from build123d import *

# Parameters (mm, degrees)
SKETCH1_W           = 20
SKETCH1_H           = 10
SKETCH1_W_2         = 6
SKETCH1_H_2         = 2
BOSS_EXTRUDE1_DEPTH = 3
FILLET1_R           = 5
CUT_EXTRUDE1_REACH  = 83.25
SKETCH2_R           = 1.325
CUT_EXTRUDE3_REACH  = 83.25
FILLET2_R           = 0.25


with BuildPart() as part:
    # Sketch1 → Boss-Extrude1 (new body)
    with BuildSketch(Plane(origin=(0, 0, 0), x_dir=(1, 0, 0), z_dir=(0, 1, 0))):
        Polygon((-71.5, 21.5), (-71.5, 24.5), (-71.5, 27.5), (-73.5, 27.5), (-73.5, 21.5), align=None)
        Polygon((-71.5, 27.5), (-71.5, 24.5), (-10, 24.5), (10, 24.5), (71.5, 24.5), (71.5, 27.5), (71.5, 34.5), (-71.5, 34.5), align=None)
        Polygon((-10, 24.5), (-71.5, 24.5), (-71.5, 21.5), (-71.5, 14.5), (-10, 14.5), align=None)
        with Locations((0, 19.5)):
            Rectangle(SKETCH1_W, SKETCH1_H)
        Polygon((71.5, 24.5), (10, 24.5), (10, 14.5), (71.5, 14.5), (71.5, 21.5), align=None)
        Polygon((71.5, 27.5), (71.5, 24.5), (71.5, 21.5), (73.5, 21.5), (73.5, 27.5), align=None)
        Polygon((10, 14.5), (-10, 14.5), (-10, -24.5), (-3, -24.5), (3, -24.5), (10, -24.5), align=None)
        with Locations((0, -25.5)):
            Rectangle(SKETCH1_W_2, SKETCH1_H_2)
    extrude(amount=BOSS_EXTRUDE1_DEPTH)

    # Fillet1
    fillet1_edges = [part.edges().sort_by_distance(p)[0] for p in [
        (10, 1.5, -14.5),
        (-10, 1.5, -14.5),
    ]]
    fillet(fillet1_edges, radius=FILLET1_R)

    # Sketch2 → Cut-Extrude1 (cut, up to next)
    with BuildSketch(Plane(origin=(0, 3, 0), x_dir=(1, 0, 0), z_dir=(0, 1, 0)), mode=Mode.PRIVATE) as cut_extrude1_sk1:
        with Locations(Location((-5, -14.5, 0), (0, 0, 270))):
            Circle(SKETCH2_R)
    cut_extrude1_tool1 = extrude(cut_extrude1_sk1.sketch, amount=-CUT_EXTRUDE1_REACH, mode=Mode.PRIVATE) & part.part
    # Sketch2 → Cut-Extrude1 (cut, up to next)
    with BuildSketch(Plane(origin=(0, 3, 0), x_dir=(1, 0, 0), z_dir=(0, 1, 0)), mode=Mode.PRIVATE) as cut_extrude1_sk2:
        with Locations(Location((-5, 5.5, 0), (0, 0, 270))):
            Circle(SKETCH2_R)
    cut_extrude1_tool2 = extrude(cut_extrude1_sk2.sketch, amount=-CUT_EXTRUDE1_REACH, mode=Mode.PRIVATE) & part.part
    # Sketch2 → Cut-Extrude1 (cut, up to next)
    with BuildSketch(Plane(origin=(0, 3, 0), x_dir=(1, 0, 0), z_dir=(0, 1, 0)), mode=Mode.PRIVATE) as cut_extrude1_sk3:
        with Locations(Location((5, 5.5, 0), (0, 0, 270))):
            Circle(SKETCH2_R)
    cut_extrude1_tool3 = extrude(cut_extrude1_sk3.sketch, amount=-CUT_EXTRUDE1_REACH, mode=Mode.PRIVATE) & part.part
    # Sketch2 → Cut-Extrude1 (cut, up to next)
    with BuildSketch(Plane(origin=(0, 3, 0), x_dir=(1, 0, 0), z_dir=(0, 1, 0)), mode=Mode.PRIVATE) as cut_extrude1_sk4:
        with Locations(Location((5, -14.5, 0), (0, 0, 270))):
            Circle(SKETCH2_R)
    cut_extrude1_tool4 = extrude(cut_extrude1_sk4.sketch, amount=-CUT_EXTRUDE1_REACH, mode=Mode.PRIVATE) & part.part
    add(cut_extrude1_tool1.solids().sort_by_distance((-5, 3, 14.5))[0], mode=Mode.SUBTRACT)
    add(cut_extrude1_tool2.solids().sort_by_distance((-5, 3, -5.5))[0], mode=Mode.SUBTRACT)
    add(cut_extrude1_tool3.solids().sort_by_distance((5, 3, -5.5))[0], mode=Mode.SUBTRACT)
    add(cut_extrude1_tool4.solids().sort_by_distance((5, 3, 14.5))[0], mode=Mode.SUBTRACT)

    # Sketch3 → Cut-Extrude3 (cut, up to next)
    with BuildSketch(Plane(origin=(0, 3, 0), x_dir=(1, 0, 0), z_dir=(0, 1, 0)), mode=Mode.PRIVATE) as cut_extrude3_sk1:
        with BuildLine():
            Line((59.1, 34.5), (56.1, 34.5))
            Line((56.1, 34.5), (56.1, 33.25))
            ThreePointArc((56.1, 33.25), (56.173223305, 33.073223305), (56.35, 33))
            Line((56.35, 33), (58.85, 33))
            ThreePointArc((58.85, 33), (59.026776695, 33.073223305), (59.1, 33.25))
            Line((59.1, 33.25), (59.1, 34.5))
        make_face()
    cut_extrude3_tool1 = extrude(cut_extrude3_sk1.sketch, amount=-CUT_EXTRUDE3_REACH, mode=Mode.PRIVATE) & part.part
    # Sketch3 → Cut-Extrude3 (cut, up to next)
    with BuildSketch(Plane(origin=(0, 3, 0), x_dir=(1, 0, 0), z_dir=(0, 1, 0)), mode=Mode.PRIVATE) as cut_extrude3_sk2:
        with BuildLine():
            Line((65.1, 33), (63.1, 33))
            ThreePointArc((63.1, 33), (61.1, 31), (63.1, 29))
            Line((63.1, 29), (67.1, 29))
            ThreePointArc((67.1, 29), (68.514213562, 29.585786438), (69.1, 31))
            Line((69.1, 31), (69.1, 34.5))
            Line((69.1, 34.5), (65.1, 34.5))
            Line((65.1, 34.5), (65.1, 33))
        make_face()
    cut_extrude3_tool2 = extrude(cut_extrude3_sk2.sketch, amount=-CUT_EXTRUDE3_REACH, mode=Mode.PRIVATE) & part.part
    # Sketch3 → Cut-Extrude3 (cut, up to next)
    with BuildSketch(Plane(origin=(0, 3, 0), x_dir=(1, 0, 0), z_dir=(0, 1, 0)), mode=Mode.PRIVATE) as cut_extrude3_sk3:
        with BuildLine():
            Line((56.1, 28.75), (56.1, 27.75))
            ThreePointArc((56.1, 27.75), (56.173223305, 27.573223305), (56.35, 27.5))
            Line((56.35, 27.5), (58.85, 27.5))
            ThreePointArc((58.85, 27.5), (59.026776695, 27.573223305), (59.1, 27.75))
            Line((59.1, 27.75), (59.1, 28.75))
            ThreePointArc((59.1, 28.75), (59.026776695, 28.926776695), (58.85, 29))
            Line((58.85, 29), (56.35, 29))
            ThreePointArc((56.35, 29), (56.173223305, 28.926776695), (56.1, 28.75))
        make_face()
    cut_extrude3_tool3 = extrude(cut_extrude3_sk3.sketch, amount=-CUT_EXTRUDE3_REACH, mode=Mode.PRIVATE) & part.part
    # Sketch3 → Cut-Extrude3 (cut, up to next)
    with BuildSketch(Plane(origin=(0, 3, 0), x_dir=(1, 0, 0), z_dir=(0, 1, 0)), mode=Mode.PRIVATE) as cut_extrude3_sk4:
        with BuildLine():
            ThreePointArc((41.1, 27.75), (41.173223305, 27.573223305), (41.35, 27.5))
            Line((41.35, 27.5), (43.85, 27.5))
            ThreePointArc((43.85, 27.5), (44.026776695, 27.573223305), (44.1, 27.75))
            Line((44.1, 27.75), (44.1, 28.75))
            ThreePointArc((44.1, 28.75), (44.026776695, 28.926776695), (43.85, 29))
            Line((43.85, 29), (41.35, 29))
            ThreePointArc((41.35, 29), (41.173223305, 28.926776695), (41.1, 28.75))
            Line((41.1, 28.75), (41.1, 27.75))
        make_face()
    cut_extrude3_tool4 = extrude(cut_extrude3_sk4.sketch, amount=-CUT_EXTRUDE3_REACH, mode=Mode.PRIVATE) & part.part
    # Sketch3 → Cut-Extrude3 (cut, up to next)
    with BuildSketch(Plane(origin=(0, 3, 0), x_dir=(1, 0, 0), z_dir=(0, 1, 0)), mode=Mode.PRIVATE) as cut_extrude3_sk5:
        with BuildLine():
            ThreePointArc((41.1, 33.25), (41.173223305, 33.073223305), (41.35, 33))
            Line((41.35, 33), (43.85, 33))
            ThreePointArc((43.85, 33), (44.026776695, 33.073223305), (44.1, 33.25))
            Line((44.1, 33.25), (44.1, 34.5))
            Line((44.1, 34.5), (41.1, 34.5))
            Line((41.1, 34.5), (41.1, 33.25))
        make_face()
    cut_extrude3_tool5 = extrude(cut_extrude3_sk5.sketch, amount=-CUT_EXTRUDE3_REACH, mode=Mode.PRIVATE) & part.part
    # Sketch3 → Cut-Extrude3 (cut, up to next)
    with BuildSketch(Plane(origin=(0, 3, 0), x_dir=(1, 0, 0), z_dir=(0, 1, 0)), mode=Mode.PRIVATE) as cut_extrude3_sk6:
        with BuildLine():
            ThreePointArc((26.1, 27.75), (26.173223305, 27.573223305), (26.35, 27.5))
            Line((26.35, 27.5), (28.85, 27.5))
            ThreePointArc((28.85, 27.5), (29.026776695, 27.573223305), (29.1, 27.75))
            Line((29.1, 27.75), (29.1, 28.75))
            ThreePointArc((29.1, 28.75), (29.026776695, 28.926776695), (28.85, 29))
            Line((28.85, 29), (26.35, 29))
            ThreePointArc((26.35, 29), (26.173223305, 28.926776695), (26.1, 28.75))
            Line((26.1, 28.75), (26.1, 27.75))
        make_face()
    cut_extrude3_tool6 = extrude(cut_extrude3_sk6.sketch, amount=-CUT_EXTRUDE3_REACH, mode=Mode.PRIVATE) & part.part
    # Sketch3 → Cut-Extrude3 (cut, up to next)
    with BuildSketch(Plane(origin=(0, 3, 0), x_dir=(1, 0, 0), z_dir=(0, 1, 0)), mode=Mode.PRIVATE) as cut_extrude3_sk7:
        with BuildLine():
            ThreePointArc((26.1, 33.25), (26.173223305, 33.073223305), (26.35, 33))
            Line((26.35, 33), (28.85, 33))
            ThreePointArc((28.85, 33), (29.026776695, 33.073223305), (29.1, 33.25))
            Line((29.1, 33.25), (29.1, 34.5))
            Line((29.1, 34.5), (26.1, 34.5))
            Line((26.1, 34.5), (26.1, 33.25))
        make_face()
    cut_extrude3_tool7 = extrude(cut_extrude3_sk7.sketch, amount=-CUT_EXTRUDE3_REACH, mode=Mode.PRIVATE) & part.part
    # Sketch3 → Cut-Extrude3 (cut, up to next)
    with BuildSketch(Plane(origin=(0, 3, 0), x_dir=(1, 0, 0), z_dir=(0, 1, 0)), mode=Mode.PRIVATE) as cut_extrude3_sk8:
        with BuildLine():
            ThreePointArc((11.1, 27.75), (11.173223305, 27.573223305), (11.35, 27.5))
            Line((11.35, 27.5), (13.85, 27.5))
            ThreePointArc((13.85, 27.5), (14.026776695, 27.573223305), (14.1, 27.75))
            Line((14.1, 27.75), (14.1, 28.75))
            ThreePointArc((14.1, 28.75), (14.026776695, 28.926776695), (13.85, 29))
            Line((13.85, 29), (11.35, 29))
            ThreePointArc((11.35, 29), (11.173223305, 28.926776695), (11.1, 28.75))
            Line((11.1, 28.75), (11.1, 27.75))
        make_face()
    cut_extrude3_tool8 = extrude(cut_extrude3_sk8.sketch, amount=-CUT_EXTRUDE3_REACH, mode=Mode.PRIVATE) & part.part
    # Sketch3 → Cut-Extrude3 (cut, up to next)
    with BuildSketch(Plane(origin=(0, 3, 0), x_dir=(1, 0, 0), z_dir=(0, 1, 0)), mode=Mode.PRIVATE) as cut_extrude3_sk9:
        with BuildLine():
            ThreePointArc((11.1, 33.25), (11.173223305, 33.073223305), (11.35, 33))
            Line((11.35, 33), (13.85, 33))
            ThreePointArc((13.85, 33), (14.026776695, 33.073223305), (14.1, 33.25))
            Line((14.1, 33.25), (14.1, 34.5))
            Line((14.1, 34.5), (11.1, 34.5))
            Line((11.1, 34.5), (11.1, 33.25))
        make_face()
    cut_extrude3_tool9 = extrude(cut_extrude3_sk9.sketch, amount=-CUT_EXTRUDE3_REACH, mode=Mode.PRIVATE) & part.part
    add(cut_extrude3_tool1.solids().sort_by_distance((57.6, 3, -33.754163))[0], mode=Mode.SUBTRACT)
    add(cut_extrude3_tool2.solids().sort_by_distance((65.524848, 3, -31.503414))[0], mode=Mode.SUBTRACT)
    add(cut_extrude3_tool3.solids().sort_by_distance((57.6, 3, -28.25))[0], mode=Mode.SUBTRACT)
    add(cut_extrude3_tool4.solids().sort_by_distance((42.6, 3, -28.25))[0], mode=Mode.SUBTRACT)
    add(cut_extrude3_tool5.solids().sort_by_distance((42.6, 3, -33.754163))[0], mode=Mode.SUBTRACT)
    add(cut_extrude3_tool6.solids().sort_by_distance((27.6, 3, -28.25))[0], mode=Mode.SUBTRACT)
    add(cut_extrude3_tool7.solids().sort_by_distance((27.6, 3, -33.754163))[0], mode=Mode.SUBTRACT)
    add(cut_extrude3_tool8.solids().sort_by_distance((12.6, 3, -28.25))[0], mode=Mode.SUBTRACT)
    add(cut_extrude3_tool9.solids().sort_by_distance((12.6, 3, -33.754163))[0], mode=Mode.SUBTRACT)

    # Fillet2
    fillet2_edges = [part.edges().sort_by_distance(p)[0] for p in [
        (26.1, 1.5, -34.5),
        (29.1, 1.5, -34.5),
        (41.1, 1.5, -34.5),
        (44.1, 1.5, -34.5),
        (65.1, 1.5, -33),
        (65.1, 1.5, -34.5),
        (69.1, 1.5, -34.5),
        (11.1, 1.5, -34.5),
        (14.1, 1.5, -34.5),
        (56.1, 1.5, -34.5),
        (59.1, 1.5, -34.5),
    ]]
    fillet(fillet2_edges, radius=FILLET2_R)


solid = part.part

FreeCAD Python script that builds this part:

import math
import FreeCAD as App
import Part
import Sketcher
from FreeCAD import Vector


def edges_at(feature, points):
    """Names of the edges that pass closest to the given points."""
    edges = feature.Shape.Edges
    near = lambda p: min(range(len(edges)), key=lambda i: edges[i].distToShape(Part.Vertex(*p))[0])
    return sorted({f"Edge{near(p) + 1}" for p in points})

doc = App.newDocument("Part")
body = doc.addObject("PartDesign::Body", "Body")

# Sketch on XZ plane
sketch1 = body.newObject("Sketcher::SketchObject", "Sketch")
sketch1.AttachmentSupport = (doc.getObject("XZ_Plane"), [""])
sketch1.MapMode = "FlatFace"
sketch1.addGeometry([
    Part.LineSegment(Vector(71.5, -34.5, 0), Vector(-71.5, -34.5, 0)),  # 0
    Part.LineSegment(Vector(-71.5, -34.5, 0), Vector(-71.5, -27.5, 0)),  # 1
    Part.LineSegment(Vector(-71.5, -27.5, 0), Vector(-73.5, -27.5, 0)),  # 2
    Part.LineSegment(Vector(-73.5, -27.5, 0), Vector(-73.5, -21.5, 0)),  # 3
    Part.LineSegment(Vector(-73.5, -21.5, 0), Vector(-71.5, -21.5, 0)),  # 4
    Part.LineSegment(Vector(-71.5, -21.5, 0), Vector(-71.5, -14.5, 0)),  # 5
    Part.LineSegment(Vector(-71.5, -14.5, 0), Vector(-10, -14.5, 0)),  # 6
    Part.LineSegment(Vector(-10, -14.5, 0), Vector(-10, 24.5, 0)),  # 7
    Part.LineSegment(Vector(-10, 24.5, 0), Vector(-3, 24.5, 0)),  # 8
    Part.LineSegment(Vector(-3, 24.5, 0), Vector(-3, 26.5, 0)),  # 9
    Part.LineSegment(Vector(-3, 26.5, 0), Vector(3, 26.5, 0)),  # 10
    Part.LineSegment(Vector(3, 26.5, 0), Vector(3, 24.5, 0)),  # 11
    Part.LineSegment(Vector(3, 24.5, 0), Vector(10, 24.5, 0)),  # 12
    Part.LineSegment(Vector(10, 24.5, 0), Vector(10, -14.5, 0)),  # 13
    Part.LineSegment(Vector(10, -14.5, 0), Vector(71.5, -14.5, 0)),  # 14
    Part.LineSegment(Vector(71.5, -14.5, 0), Vector(71.5, -21.5, 0)),  # 15
    Part.LineSegment(Vector(71.5, -21.5, 0), Vector(73.5, -21.5, 0)),  # 16
    Part.LineSegment(Vector(73.5, -21.5, 0), Vector(73.5, -27.5, 0)),  # 17
    Part.LineSegment(Vector(73.5, -27.5, 0), Vector(71.5, -27.5, 0)),  # 18
    Part.LineSegment(Vector(71.5, -27.5, 0), Vector(71.5, -34.5, 0)),  # 19
], False)
sketch1.addConstraint([
    Sketcher.Constraint("Coincident", 0, 2, 1, 1),
    Sketcher.Constraint("Coincident", 1, 2, 2, 1),
    Sketcher.Constraint("Coincident", 2, 2, 3, 1),
    Sketcher.Constraint("Coincident", 3, 2, 4, 1),
    Sketcher.Constraint("Coincident", 4, 2, 5, 1),
    Sketcher.Constraint("Coincident", 5, 2, 6, 1),
    Sketcher.Constraint("Coincident", 6, 2, 7, 1),
    Sketcher.Constraint("Coincident", 7, 2, 8, 1),
    Sketcher.Constraint("Coincident", 8, 2, 9, 1),
    Sketcher.Constraint("Coincident", 9, 2, 10, 1),
    Sketcher.Constraint("Coincident", 10, 2, 11, 1),
    Sketcher.Constraint("Coincident", 11, 2, 12, 1),
    Sketcher.Constraint("Coincident", 12, 2, 13, 1),
    Sketcher.Constraint("Coincident", 13, 2, 14, 1),
    Sketcher.Constraint("Coincident", 14, 2, 15, 1),
    Sketcher.Constraint("Coincident", 15, 2, 16, 1),
    Sketcher.Constraint("Coincident", 16, 2, 17, 1),
    Sketcher.Constraint("Coincident", 17, 2, 18, 1),
    Sketcher.Constraint("Coincident", 18, 2, 19, 1),
    Sketcher.Constraint("Coincident", 19, 2, 0, 1),
    Sketcher.Constraint("Horizontal", 0),
    Sketcher.Constraint("Vertical", 1),
    Sketcher.Constraint("Horizontal", 2),
    Sketcher.Constraint("Vertical", 3),
    Sketcher.Constraint("Horizontal", 4),
    Sketcher.Constraint("Vertical", 5),
    Sketcher.Constraint("Horizontal", 6),
    Sketcher.Constraint("Vertical", 7),
    Sketcher.Constraint("Horizontal", 8),
    Sketcher.Constraint("Vertical", 9),
    Sketcher.Constraint("Horizontal", 10),
    Sketcher.Constraint("Vertical", 11),
    Sketcher.Constraint("Horizontal", 12),
    Sketcher.Constraint("Vertical", 13),
    Sketcher.Constraint("Horizontal", 14),
    Sketcher.Constraint("Vertical", 15),
    Sketcher.Constraint("Horizontal", 16),
    Sketcher.Constraint("Vertical", 17),
    Sketcher.Constraint("Horizontal", 18),
    Sketcher.Constraint("Vertical", 19),
    Sketcher.Constraint("Symmetric", 8, 2, 11, 2, -2),
    Sketcher.Constraint("Symmetric", 6, 2, 13, 2, -2),
    Sketcher.Constraint("Symmetric", 4, 2, 15, 2, -2),
    Sketcher.Constraint("Symmetric", 2, 2, 17, 2, -2),
    Sketcher.Constraint("Vertical", 1, 2, 4, 2),
    Sketcher.Constraint("Vertical", 15, 2, 18, 2),
    Sketcher.Constraint("Equal", 12, 1),
    Sketcher.Constraint("Equal", 10, 3),
    Sketcher.Constraint("Equal", 1, 5),
    Sketcher.Constraint("Equal", 18, 9),
    Sketcher.Constraint("DistanceX", 0, 2, 0, 1, 143.0),
    Sketcher.Constraint("DistanceX", 2, 2, 2, 1, 2.0),
    Sketcher.Constraint("DistanceX", 8, 1, 8, 2, 7.0),
    Sketcher.Constraint("DistanceX", 10, 1, 10, 2, 6.0),
    Sketcher.Constraint("DistanceY", 7, 1, 7, 2, 39.0),
    Sketcher.Constraint("DistanceY", 0, 2, -1, 1, 34.5),
])
pad1 = body.newObject("PartDesign::Pad", "Pad")
pad1.Profile = sketch1
pad1.Length = 3
pad1.Reversed = True
doc.recompute()

fillet = body.newObject("PartDesign::Fillet", "Fillet")
fillet.Base = (pad1, edges_at(pad1, [(10, 1.5, -14.5), (-10, 1.5, -14.5)]))
fillet.Radius = 5

# Sketch on XZ plane
sketch2 = body.newObject("Sketcher::SketchObject", "Sketch001")
sketch2.AttachmentSupport = (doc.getObject("XZ_Plane"), [""])
sketch2.MapMode = "FlatFace"
sketch2.AttachmentOffset = App.Placement(Vector(0, 0, -3), App.Rotation())
sketch2.addGeometry(Part.Circle(Vector(-5, 14.5, 0), Vector(0, 0, 1), 1.3), False)
sketch2.addConstraint([
    Sketcher.Constraint("Diameter", 0, 2.65),
    Sketcher.Constraint("DistanceX", 0, 3, -1, 1, 5.0),
    Sketcher.Constraint("DistanceY", -1, 1, 0, 3, 14.5),
])
pocket1 = body.newObject("PartDesign::Pocket", "Pocket")
pocket1.Profile = sketch2
pocket1.Type = "UpToFirst"
pocket1.Reversed = True

# Sketch on XZ plane
sketch3 = body.newObject("Sketcher::SketchObject", "Sketch002")
sketch3.AttachmentSupport = (doc.getObject("XZ_Plane"), [""])
sketch3.MapMode = "FlatFace"
sketch3.AttachmentOffset = App.Placement(Vector(0, 0, -3), App.Rotation())
sketch3.addGeometry(Part.Circle(Vector(-5, -5.5, 0), Vector(0, 0, 1), 1.3), False)
sketch3.addConstraint([
    Sketcher.Constraint("Diameter", 0, 2.65),
    Sketcher.Constraint("DistanceX", 0, 3, -1, 1, 5.0),
    Sketcher.Constraint("DistanceY", 0, 3, -1, 1, 5.5),
])
pocket2 = body.newObject("PartDesign::Pocket", "Pocket001")
pocket2.Profile = sketch3
pocket2.Type = "UpToFirst"
pocket2.Reversed = True

# Sketch on XZ plane
sketch4 = body.newObject("Sketcher::SketchObject", "Sketch003")
sketch4.AttachmentSupport = (doc.getObject("XZ_Plane"), [""])
sketch4.MapMode = "FlatFace"
sketch4.AttachmentOffset = App.Placement(Vector(0, 0, -3), App.Rotation())
sketch4.addGeometry(Part.Circle(Vector(5, -5.5, 0), Vector(0, 0, 1), 1.3), False)
sketch4.addConstraint([
    Sketcher.Constraint("Diameter", 0, 2.65),
    Sketcher.Constraint("DistanceX", -1, 1, 0, 3, 5.0),
    Sketcher.Constraint("DistanceY", 0, 3, -1, 1, 5.5),
])
pocket3 = body.newObject("PartDesign::Pocket", "Pocket002")
pocket3.Profile = sketch4
pocket3.Type = "UpToFirst"
pocket3.Reversed = True

# Sketch on XZ plane
sketch5 = body.newObject("Sketcher::SketchObject", "Sketch004")
sketch5.AttachmentSupport = (doc.getObject("XZ_Plane"), [""])
sketch5.MapMode = "FlatFace"
sketch5.AttachmentOffset = App.Placement(Vector(0, 0, -3), App.Rotation())
sketch5.addGeometry(Part.Circle(Vector(5, 14.5, 0), Vector(0, 0, 1), 1.3), False)
sketch5.addConstraint([
    Sketcher.Constraint("Diameter", 0, 2.65),
    Sketcher.Constraint("DistanceX", -1, 1, 0, 3, 5.0),
    Sketcher.Constraint("DistanceY", -1, 1, 0, 3, 14.5),
])
pocket4 = body.newObject("PartDesign::Pocket", "Pocket003")
pocket4.Profile = sketch5
pocket4.Type = "UpToFirst"
pocket4.Reversed = True

# Sketch on XZ plane
sketch6 = body.newObject("Sketcher::SketchObject", "Sketch005")
sketch6.AttachmentSupport = (doc.getObject("XZ_Plane"), [""])
sketch6.MapMode = "FlatFace"
sketch6.AttachmentOffset = App.Placement(Vector(0, 0, -3), App.Rotation())
sketch6.addGeometry([
    Part.LineSegment(Vector(59.1, -34.5, 0), Vector(56.1, -34.5, 0)),  # 0
    Part.LineSegment(Vector(56.1, -34.5, 0), Vector(56.1, -33.25, 0)),  # 1
    Part.ArcOfCircle(Part.Circle(Vector(56.35, -33.25, 0), Vector(0, 0, 1), 0.25), math.radians(90), math.radians(180)),  # 2
    Part.LineSegment(Vector(56.35, -33, 0), Vector(58.85, -33, 0)),  # 3
    Part.ArcOfCircle(Part.Circle(Vector(58.85, -33.25, 0), Vector(0, 0, 1), 0.25), math.radians(0), math.radians(90)),  # 4
    Part.LineSegment(Vector(59.1, -33.25, 0), Vector(59.1, -34.5, 0)),  # 5
], False)
sketch6.addConstraint([
    Sketcher.Constraint("Coincident", 0, 2, 1, 1),
    Sketcher.Constraint("Tangent", 1, 2, 2, 2),
    Sketcher.Constraint("Tangent", 2, 1, 3, 1),
    Sketcher.Constraint("Tangent", 3, 2, 4, 2),
    Sketcher.Constraint("Tangent", 4, 1, 5, 1),
    Sketcher.Constraint("Coincident", 5, 2, 0, 1),
    Sketcher.Constraint("Horizontal", 0),
    Sketcher.Constraint("Vertical", 1),
    Sketcher.Constraint("Horizontal", 3),
    Sketcher.Constraint("Vertical", 5),
    Sketcher.Constraint("Equal", 2, 4),
    Sketcher.Constraint("DistanceX", 0, 2, 0, 1, 3.0),
    Sketcher.Constraint("Radius", 2, 0.25),
    Sketcher.Constraint("DistanceY", 2, 1, -1, 1, 33.0),
    Sketcher.Constraint("DistanceY", 1, 1, 1, 2, 1.25),
    Sketcher.Constraint("DistanceX", -1, 1, 0, 2, 56.1),
])
pocket5 = body.newObject("PartDesign::Pocket", "Pocket004")
pocket5.Profile = sketch6
pocket5.Type = "UpToFirst"
pocket5.Reversed = True

# Sketch on XZ plane
sketch7 = body.newObject("Sketcher::SketchObject", "Sketch006")
sketch7.AttachmentSupport = (doc.getObject("XZ_Plane"), [""])
sketch7.MapMode = "FlatFace"
sketch7.AttachmentOffset = App.Placement(Vector(0, 0, -3), App.Rotation())
sketch7.addGeometry([
    Part.LineSegment(Vector(65.1, -33, 0), Vector(63.1, -33, 0)),  # 0
    Part.ArcOfCircle(Part.Circle(Vector(63.1, -31, 0), Vector(0, 0, 1), 2), math.radians(90), math.radians(270)),  # 1
    Part.LineSegment(Vector(63.1, -29, 0), Vector(67.1, -29, 0)),  # 2
    Part.ArcOfCircle(Part.Circle(Vector(67.1, -31, 0), Vector(0, 0, 1), 2), math.radians(0), math.radians(90)),  # 3
    Part.LineSegment(Vector(69.1, -31, 0), Vector(69.1, -34.5, 0)),  # 4
    Part.LineSegment(Vector(69.1, -34.5, 0), Vector(65.1, -34.5, 0)),  # 5
    Part.LineSegment(Vector(65.1, -34.5, 0), Vector(65.1, -33, 0)),  # 6
], False)
sketch7.addConstraint([
    Sketcher.Constraint("Tangent", 0, 2, 1, 2),
    Sketcher.Constraint("Tangent", 1, 1, 2, 1),
    Sketcher.Constraint("Tangent", 2, 2, 3, 2),
    Sketcher.Constraint("Tangent", 3, 1, 4, 1),
    Sketcher.Constraint("Coincident", 4, 2, 5, 1),
    Sketcher.Constraint("Coincident", 5, 2, 6, 1),
    Sketcher.Constraint("Coincident", 6, 2, 0, 1),
    Sketcher.Constraint("Horizontal", 0),
    Sketcher.Constraint("Horizontal", 2),
    Sketcher.Constraint("Vertical", 4),
    Sketcher.Constraint("Horizontal", 5),
    Sketcher.Constraint("Vertical", 6),
    Sketcher.Constraint("Equal", 1, 3),
    Sketcher.Constraint("Equal", 2, 5),
    Sketcher.Constraint("Radius", 1, 2.0),
    Sketcher.Constraint("DistanceX", 2, 1, 2, 2, 4.0),
    Sketcher.Constraint("DistanceY", 4, 2, 4, 1, 3.5),
    Sketcher.Constraint("DistanceY", 1, 3, -1, 1, 31.0),
    Sketcher.Constraint("DistanceX", -1, 1, 1, 3, 63.1),
])
pocket6 = body.newObject("PartDesign::Pocket", "Pocket005")
pocket6.Profile = sketch7
pocket6.Type = "UpToFirst"
pocket6.Reversed = True

# Sketch on XZ plane
sketch8 = body.newObject("Sketcher::SketchObject", "Sketch007")
sketch8.AttachmentSupport = (doc.getObject("XZ_Plane"), [""])
sketch8.MapMode = "FlatFace"
sketch8.AttachmentOffset = App.Placement(Vector(0, 0, -3), App.Rotation())
sketch8.addGeometry([
    Part.LineSegment(Vector(56.1, -28.75, 0), Vector(56.1, -27.75, 0)),  # 0
    Part.ArcOfCircle(Part.Circle(Vector(56.35, -27.75, 0), Vector(0, 0, 1), 0.25), math.radians(90), math.radians(180)),  # 1
    Part.LineSegment(Vector(56.35, -27.5, 0), Vector(58.85, -27.5, 0)),  # 2
    Part.ArcOfCircle(Part.Circle(Vector(58.85, -27.75, 0), Vector(0, 0, 1), 0.25), math.radians(0), math.radians(90)),  # 3
    Part.LineSegment(Vector(59.1, -27.75, 0), Vector(59.1, -28.75, 0)),  # 4
    Part.ArcOfCircle(Part.Circle(Vector(58.85, -28.75, 0), Vector(0, 0, 1), 0.25), math.radians(-90), math.radians(0)),  # 5
    Part.LineSegment(Vector(58.85, -29, 0), Vector(56.35, -29, 0)),  # 6
    Part.ArcOfCircle(Part.Circle(Vector(56.35, -28.75, 0), Vector(0, 0, 1), 0.25), math.radians(-180), math.radians(-90)),  # 7
], False)
sketch8.addConstraint([
    Sketcher.Constraint("Tangent", 0, 2, 1, 2),
    Sketcher.Constraint("Tangent", 1, 1, 2, 1),
    Sketcher.Constraint("Tangent", 2, 2, 3, 2),
    Sketcher.Constraint("Tangent", 3, 1, 4, 1),
    Sketcher.Constraint("Tangent", 4, 2, 5, 2),
    Sketcher.Constraint("Tangent", 5, 1, 6, 1),
    Sketcher.Constraint("Tangent", 6, 2, 7, 2),
    Sketcher.Constraint("Tangent", 7, 1, 0, 1),
    Sketcher.Constraint("Vertical", 0),
    Sketcher.Constraint("Horizontal", 2),
    Sketcher.Constraint("Vertical", 4),
    Sketcher.Constraint("Horizontal", 6),
    Sketcher.Constraint("Equal", 1, 3),
    Sketcher.Constraint("Equal", 3, 5),
    Sketcher.Constraint("Equal", 5, 7),
    Sketcher.Constraint("DistanceY", 0, 1, 0, 2, 1.0),
    Sketcher.Constraint("Radius", 1, 0.25),
    Sketcher.Constraint("DistanceX", 2, 1, 2, 2, 2.5),
    Sketcher.Constraint("DistanceY", 5, 1, -1, 1, 29.0),
    Sketcher.Constraint("DistanceX", -1, 1, 0, 2, 56.1),
])
pocket7 = body.newObject("PartDesign::Pocket", "Pocket006")
pocket7.Profile = sketch8
pocket7.Type = "UpToFirst"
pocket7.Reversed = True

# Sketch on XZ plane
sketch9 = body.newObject("Sketcher::SketchObject", "Sketch008")
sketch9.AttachmentSupport = (doc.getObject("XZ_Plane"), [""])
sketch9.MapMode = "FlatFace"
sketch9.AttachmentOffset = App.Placement(Vector(0, 0, -3), App.Rotation())
sketch9.addGeometry([
    Part.ArcOfCircle(Part.Circle(Vector(41.35, -27.75, 0), Vector(0, 0, 1), 0.25), math.radians(90), math.radians(180)),  # 0
    Part.LineSegment(Vector(41.35, -27.5, 0), Vector(43.85, -27.5, 0)),  # 1
    Part.ArcOfCircle(Part.Circle(Vector(43.85, -27.75, 0), Vector(0, 0, 1), 0.25), math.radians(0), math.radians(90)),  # 2
    Part.LineSegment(Vector(44.1, -27.75, 0), Vector(44.1, -28.75, 0)),  # 3
    Part.ArcOfCircle(Part.Circle(Vector(43.85, -28.75, 0), Vector(0, 0, 1), 0.25), math.radians(-90), math.radians(0)),  # 4
    Part.LineSegment(Vector(43.85, -29, 0), Vector(41.35, -29, 0)),  # 5
    Part.ArcOfCircle(Part.Circle(Vector(41.35, -28.75, 0), Vector(0, 0, 1), 0.25), math.radians(-180), math.radians(-90)),  # 6
    Part.LineSegment(Vector(41.1, -28.75, 0), Vector(41.1, -27.75, 0)),  # 7
], False)
sketch9.addConstraint([
    Sketcher.Constraint("Tangent", 0, 1, 1, 1),
    Sketcher.Constraint("Tangent", 1, 2, 2, 2),
    Sketcher.Constraint("Tangent", 2, 1, 3, 1),
    Sketcher.Constraint("Tangent", 3, 2, 4, 2),
    Sketcher.Constraint("Tangent", 4, 1, 5, 1),
    Sketcher.Constraint("Tangent", 5, 2, 6, 2),
    Sketcher.Constraint("Tangent", 6, 1, 7, 1),
    Sketcher.Constraint("Tangent", 7, 2, 0, 2),
    Sketcher.Constraint("Horizontal", 1),
    Sketcher.Constraint("Vertical", 3),
    Sketcher.Constraint("Horizontal", 5),
    Sketcher.Constraint("Vertical", 7),
    Sketcher.Constraint("Equal", 0, 2),
    Sketcher.Constraint("Equal", 2, 4),
    Sketcher.Constraint("Equal", 4, 6),
    Sketcher.Constraint("DistanceY", 3, 2, 3, 1, 1.0),
    Sketcher.Constraint("Radius", 0, 0.25),
    Sketcher.Constraint("DistanceX", 1, 1, 1, 2, 2.5),
    Sketcher.Constraint("DistanceY", 4, 1, -1, 1, 29.0),
    Sketcher.Constraint("DistanceX", -1, 1, 2, 1, 44.1),
])
pocket8 = body.newObject("PartDesign::Pocket", "Pocket007")
pocket8.Profile = sketch9
pocket8.Type = "UpToFirst"
pocket8.Reversed = True

# Sketch on XZ plane
sketch10 = body.newObject("Sketcher::SketchObject", "Sketch009")
sketch10.AttachmentSupport = (doc.getObject("XZ_Plane"), [""])
sketch10.MapMode = "FlatFace"
sketch10.AttachmentOffset = App.Placement(Vector(0, 0, -3), App.Rotation())
sketch10.addGeometry([
    Part.ArcOfCircle(Part.Circle(Vector(41.35, -33.25, 0), Vector(0, 0, 1), 0.25), math.radians(90), math.radians(180)),  # 0
    Part.LineSegment(Vector(41.35, -33, 0), Vector(43.85, -33, 0)),  # 1
    Part.ArcOfCircle(Part.Circle(Vector(43.85, -33.25, 0), Vector(0, 0, 1), 0.25), math.radians(0), math.radians(90)),  # 2
    Part.LineSegment(Vector(44.1, -33.25, 0), Vector(44.1, -34.5, 0)),  # 3
    Part.LineSegment(Vector(44.1, -34.5, 0), Vector(41.1, -34.5, 0)),  # 4
    Part.LineSegment(Vector(41.1, -34.5, 0), Vector(41.1, -33.25, 0)),  # 5
], False)
sketch10.addConstraint([
    Sketcher.Constraint("Tangent", 0, 1, 1, 1),
    Sketcher.Constraint("Tangent", 1, 2, 2, 2),
    Sketcher.Constraint("Tangent", 2, 1, 3, 1),
    Sketcher.Constraint("Coincident", 3, 2, 4, 1),
    Sketcher.Constraint("Coincident", 4, 2, 5, 1),
    Sketcher.Constraint("Tangent", 5, 2, 0, 2),
    Sketcher.Constraint("Horizontal", 1),
    Sketcher.Constraint("Vertical", 3),
    Sketcher.Constraint("Horizontal", 4),
    Sketcher.Constraint("Vertical", 5),
    Sketcher.Constraint("Equal", 0, 2),
    Sketcher.Constraint("DistanceX", 4, 2, 4, 1, 3.0),
    Sketcher.Constraint("Radius", 0, 0.25),
    Sketcher.Constraint("DistanceY", 0, 1, -1, 1, 33.0),
    Sketcher.Constraint("DistanceY", 3, 2, 3, 1, 1.25),
    Sketcher.Constraint("DistanceX", -1, 1, 2, 1, 44.1),
])
pocket9 = body.newObject("PartDesign::Pocket", "Pocket008")
pocket9.Profile = sketch10
pocket9.Type = "UpToFirst"
pocket9.Reversed = True

# Sketch on XZ plane
sketch11 = body.newObject("Sketcher::SketchObject", "Sketch010")
sketch11.AttachmentSupport = (doc.getObject("XZ_Plane"), [""])
sketch11.MapMode = "FlatFace"
sketch11.AttachmentOffset = App.Placement(Vector(0, 0, -3), App.Rotation())
sketch11.addGeometry([
    Part.ArcOfCircle(Part.Circle(Vector(26.35, -27.75, 0), Vector(0, 0, 1), 0.25), math.radians(90), math.radians(180)),  # 0
    Part.LineSegment(Vector(26.35, -27.5, 0), Vector(28.85, -27.5, 0)),  # 1
    Part.ArcOfCircle(Part.Circle(Vector(28.85, -27.75, 0), Vector(0, 0, 1), 0.25), math.radians(0), math.radians(90)),  # 2
    Part.LineSegment(Vector(29.1, -27.75, 0), Vector(29.1, -28.75, 0)),  # 3
    Part.ArcOfCircle(Part.Circle(Vector(28.85, -28.75, 0), Vector(0, 0, 1), 0.25), math.radians(-90), math.radians(0)),  # 4
    Part.LineSegment(Vector(28.85, -29, 0), Vector(26.35, -29, 0)),  # 5
    Part.ArcOfCircle(Part.Circle(Vector(26.35, -28.75, 0), Vector(0, 0, 1), 0.25), math.radians(-180), math.radians(-90)),  # 6
    Part.LineSegment(Vector(26.1, -28.75, 0), Vector(26.1, -27.75, 0)),  # 7
], False)
sketch11.addConstraint([
    Sketcher.Constraint("Tangent", 0, 1, 1, 1),
    Sketcher.Constraint("Tangent", 1, 2, 2, 2),
    Sketcher.Constraint("Tangent", 2, 1, 3, 1),
    Sketcher.Constraint("Tangent", 3, 2, 4, 2),
    Sketcher.Constraint("Tangent", 4, 1, 5, 1),
    Sketcher.Constraint("Tangent", 5, 2, 6, 2),
    Sketcher.Constraint("Tangent", 6, 1, 7, 1),
    Sketcher.Constraint("Tangent", 7, 2, 0, 2),
    Sketcher.Constraint("Horizontal", 1),
    Sketcher.Constraint("Vertical", 3),
    Sketcher.Constraint("Horizontal", 5),
    Sketcher.Constraint("Vertical", 7),
    Sketcher.Constraint("Equal", 0, 2),
    Sketcher.Constraint("Equal", 2, 4),
    Sketcher.Constraint("Equal", 4, 6),
    Sketcher.Constraint("DistanceY", 3, 2, 3, 1, 1.0),
    Sketcher.Constraint("Radius", 0, 0.25),
    Sketcher.Constraint("DistanceX", 1, 1, 1, 2, 2.5),
    Sketcher.Constraint("DistanceY", 4, 1, -1, 1, 29.0),
    Sketcher.Constraint("DistanceX", -1, 1, 2, 1, 29.1),
])
pocket10 = body.newObject("PartDesign::Pocket", "Pocket009")
pocket10.Profile = sketch11
pocket10.Type = "UpToFirst"
pocket10.Reversed = True

# Sketch on XZ plane
sketch12 = body.newObject("Sketcher::SketchObject", "Sketch011")
sketch12.AttachmentSupport = (doc.getObject("XZ_Plane"), [""])
sketch12.MapMode = "FlatFace"
sketch12.AttachmentOffset = App.Placement(Vector(0, 0, -3), App.Rotation())
sketch12.addGeometry([
    Part.ArcOfCircle(Part.Circle(Vector(26.35, -33.25, 0), Vector(0, 0, 1), 0.25), math.radians(90), math.radians(180)),  # 0
    Part.LineSegment(Vector(26.35, -33, 0), Vector(28.85, -33, 0)),  # 1
    Part.ArcOfCircle(Part.Circle(Vector(28.85, -33.25, 0), Vector(0, 0, 1), 0.25), math.radians(0), math.radians(90)),  # 2
    Part.LineSegment(Vector(29.1, -33.25, 0), Vector(29.1, -34.5, 0)),  # 3
    Part.LineSegment(Vector(29.1, -34.5, 0), Vector(26.1, -34.5, 0)),  # 4
    Part.LineSegment(Vector(26.1, -34.5, 0), Vector(26.1, -33.25, 0)),  # 5
], False)
sketch12.addConstraint([
    Sketcher.Constraint("Tangent", 0, 1, 1, 1),
    Sketcher.Constraint("Tangent", 1, 2, 2, 2),
    Sketcher.Constraint("Tangent", 2, 1, 3, 1),
    Sketcher.Constraint("Coincident", 3, 2, 4, 1),
    Sketcher.Constraint("Coincident", 4, 2, 5, 1),
    Sketcher.Constraint("Tangent", 5, 2, 0, 2),
    Sketcher.Constraint("Horizontal", 1),
    Sketcher.Constraint("Vertical", 3),
    Sketcher.Constraint("Horizontal", 4),
    Sketcher.Constraint("Vertical", 5),
    Sketcher.Constraint("Equal", 0, 2),
    Sketcher.Constraint("DistanceX", 4, 2, 4, 1, 3.0),
    Sketcher.Constraint("Radius", 0, 0.25),
    Sketcher.Constraint("DistanceY", 0, 1, -1, 1, 33.0),
    Sketcher.Constraint("DistanceY", 3, 2, 3, 1, 1.25),
    Sketcher.Constraint("DistanceX", -1, 1, 2, 1, 29.1),
])
pocket11 = body.newObject("PartDesign::Pocket", "Pocket010")
pocket11.Profile = sketch12
pocket11.Type = "UpToFirst"
pocket11.Reversed = True

# Sketch on XZ plane
sketch13 = body.newObject("Sketcher::SketchObject", "Sketch012")
sketch13.AttachmentSupport = (doc.getObject("XZ_Plane"), [""])
sketch13.MapMode = "FlatFace"
sketch13.AttachmentOffset = App.Placement(Vector(0, 0, -3), App.Rotation())
sketch13.addGeometry([
    Part.ArcOfCircle(Part.Circle(Vector(11.35, -27.75, 0), Vector(0, 0, 1), 0.25), math.radians(90), math.radians(180)),  # 0
    Part.LineSegment(Vector(11.35, -27.5, 0), Vector(13.85, -27.5, 0)),  # 1
    Part.ArcOfCircle(Part.Circle(Vector(13.85, -27.75, 0), Vector(0, 0, 1), 0.25), math.radians(0), math.radians(90)),  # 2
    Part.LineSegment(Vector(14.1, -27.75, 0), Vector(14.1, -28.75, 0)),  # 3
    Part.ArcOfCircle(Part.Circle(Vector(13.85, -28.75, 0), Vector(0, 0, 1), 0.25), math.radians(-90), math.radians(0)),  # 4
    Part.LineSegment(Vector(13.85, -29, 0), Vector(11.35, -29, 0)),  # 5
    Part.ArcOfCircle(Part.Circle(Vector(11.35, -28.75, 0), Vector(0, 0, 1), 0.25), math.radians(-180), math.radians(-90)),  # 6
    Part.LineSegment(Vector(11.1, -28.75, 0), Vector(11.1, -27.75, 0)),  # 7
], False)
sketch13.addConstraint([
    Sketcher.Constraint("Tangent", 0, 1, 1, 1),
    Sketcher.Constraint("Tangent", 1, 2, 2, 2),
    Sketcher.Constraint("Tangent", 2, 1, 3, 1),
    Sketcher.Constraint("Tangent", 3, 2, 4, 2),
    Sketcher.Constraint("Tangent", 4, 1, 5, 1),
    Sketcher.Constraint("Tangent", 5, 2, 6, 2),
    Sketcher.Constraint("Tangent", 6, 1, 7, 1),
    Sketcher.Constraint("Tangent", 7, 2, 0, 2),
    Sketcher.Constraint("Horizontal", 1),
    Sketcher.Constraint("Vertical", 3),
    Sketcher.Constraint("Horizontal", 5),
    Sketcher.Constraint("Vertical", 7),
    Sketcher.Constraint("Equal", 0, 2),
    Sketcher.Constraint("Equal", 2, 4),
    Sketcher.Constraint("Equal", 4, 6),
    Sketcher.Constraint("DistanceY", 3, 2, 3, 1, 1.0),
    Sketcher.Constraint("Radius", 0, 0.25),
    Sketcher.Constraint("DistanceX", 1, 1, 1, 2, 2.5),
    Sketcher.Constraint("DistanceY", 4, 1, -1, 1, 29.0),
    Sketcher.Constraint("DistanceX", -1, 1, 2, 1, 14.1),
])
pocket12 = body.newObject("PartDesign::Pocket", "Pocket011")
pocket12.Profile = sketch13
pocket12.Type = "UpToFirst"
pocket12.Reversed = True

# Sketch on XZ plane
sketch14 = body.newObject("Sketcher::SketchObject", "Sketch013")
sketch14.AttachmentSupport = (doc.getObject("XZ_Plane"), [""])
sketch14.MapMode = "FlatFace"
sketch14.AttachmentOffset = App.Placement(Vector(0, 0, -3), App.Rotation())
sketch14.addGeometry([
    Part.ArcOfCircle(Part.Circle(Vector(11.35, -33.25, 0), Vector(0, 0, 1), 0.25), math.radians(90), math.radians(180)),  # 0
    Part.LineSegment(Vector(11.35, -33, 0), Vector(13.85, -33, 0)),  # 1
    Part.ArcOfCircle(Part.Circle(Vector(13.85, -33.25, 0), Vector(0, 0, 1), 0.25), math.radians(0), math.radians(90)),  # 2
    Part.LineSegment(Vector(14.1, -33.25, 0), Vector(14.1, -34.5, 0)),  # 3
    Part.LineSegment(Vector(14.1, -34.5, 0), Vector(11.1, -34.5, 0)),  # 4
    Part.LineSegment(Vector(11.1, -34.5, 0), Vector(11.1, -33.25, 0)),  # 5
], False)
sketch14.addConstraint([
    Sketcher.Constraint("Tangent", 0, 1, 1, 1),
    Sketcher.Constraint("Tangent", 1, 2, 2, 2),
    Sketcher.Constraint("Tangent", 2, 1, 3, 1),
    Sketcher.Constraint("Coincident", 3, 2, 4, 1),
    Sketcher.Constraint("Coincident", 4, 2, 5, 1),
    Sketcher.Constraint("Tangent", 5, 2, 0, 2),
    Sketcher.Constraint("Horizontal", 1),
    Sketcher.Constraint("Vertical", 3),
    Sketcher.Constraint("Horizontal", 4),
    Sketcher.Constraint("Vertical", 5),
    Sketcher.Constraint("Equal", 0, 2),
    Sketcher.Constraint("DistanceX", 4, 2, 4, 1, 3.0),
    Sketcher.Constraint("Radius", 0, 0.25),
    Sketcher.Constraint("DistanceY", 0, 1, -1, 1, 33.0),
    Sketcher.Constraint("DistanceY", 3, 2, 3, 1, 1.25),
    Sketcher.Constraint("DistanceX", -1, 1, 2, 1, 14.1),
])
pocket13 = body.newObject("PartDesign::Pocket", "Pocket012")
pocket13.Profile = sketch14
pocket13.Type = "UpToFirst"
pocket13.Reversed = True
doc.recompute()

fillet2 = body.newObject("PartDesign::Fillet", "Fillet001")
fillet2.Base = (pocket13, edges_at(pocket13, [
    (26.1, 1.5, -34.5),
    (29.1, 1.5, -34.5),
    (41.1, 1.5, -34.5),
    (44.1, 1.5, -34.5),
    (65.1, 1.5, -33),
    (65.1, 1.5, -34.5),
    (69.1, 1.5, -34.5),
    (11.1, 1.5, -34.5),
    (14.1, 1.5, -34.5),
    (56.1, 1.5, -34.5),
    (59.1, 1.5, -34.5),
]))
fillet2.Radius = 0.25

doc.recompute()
